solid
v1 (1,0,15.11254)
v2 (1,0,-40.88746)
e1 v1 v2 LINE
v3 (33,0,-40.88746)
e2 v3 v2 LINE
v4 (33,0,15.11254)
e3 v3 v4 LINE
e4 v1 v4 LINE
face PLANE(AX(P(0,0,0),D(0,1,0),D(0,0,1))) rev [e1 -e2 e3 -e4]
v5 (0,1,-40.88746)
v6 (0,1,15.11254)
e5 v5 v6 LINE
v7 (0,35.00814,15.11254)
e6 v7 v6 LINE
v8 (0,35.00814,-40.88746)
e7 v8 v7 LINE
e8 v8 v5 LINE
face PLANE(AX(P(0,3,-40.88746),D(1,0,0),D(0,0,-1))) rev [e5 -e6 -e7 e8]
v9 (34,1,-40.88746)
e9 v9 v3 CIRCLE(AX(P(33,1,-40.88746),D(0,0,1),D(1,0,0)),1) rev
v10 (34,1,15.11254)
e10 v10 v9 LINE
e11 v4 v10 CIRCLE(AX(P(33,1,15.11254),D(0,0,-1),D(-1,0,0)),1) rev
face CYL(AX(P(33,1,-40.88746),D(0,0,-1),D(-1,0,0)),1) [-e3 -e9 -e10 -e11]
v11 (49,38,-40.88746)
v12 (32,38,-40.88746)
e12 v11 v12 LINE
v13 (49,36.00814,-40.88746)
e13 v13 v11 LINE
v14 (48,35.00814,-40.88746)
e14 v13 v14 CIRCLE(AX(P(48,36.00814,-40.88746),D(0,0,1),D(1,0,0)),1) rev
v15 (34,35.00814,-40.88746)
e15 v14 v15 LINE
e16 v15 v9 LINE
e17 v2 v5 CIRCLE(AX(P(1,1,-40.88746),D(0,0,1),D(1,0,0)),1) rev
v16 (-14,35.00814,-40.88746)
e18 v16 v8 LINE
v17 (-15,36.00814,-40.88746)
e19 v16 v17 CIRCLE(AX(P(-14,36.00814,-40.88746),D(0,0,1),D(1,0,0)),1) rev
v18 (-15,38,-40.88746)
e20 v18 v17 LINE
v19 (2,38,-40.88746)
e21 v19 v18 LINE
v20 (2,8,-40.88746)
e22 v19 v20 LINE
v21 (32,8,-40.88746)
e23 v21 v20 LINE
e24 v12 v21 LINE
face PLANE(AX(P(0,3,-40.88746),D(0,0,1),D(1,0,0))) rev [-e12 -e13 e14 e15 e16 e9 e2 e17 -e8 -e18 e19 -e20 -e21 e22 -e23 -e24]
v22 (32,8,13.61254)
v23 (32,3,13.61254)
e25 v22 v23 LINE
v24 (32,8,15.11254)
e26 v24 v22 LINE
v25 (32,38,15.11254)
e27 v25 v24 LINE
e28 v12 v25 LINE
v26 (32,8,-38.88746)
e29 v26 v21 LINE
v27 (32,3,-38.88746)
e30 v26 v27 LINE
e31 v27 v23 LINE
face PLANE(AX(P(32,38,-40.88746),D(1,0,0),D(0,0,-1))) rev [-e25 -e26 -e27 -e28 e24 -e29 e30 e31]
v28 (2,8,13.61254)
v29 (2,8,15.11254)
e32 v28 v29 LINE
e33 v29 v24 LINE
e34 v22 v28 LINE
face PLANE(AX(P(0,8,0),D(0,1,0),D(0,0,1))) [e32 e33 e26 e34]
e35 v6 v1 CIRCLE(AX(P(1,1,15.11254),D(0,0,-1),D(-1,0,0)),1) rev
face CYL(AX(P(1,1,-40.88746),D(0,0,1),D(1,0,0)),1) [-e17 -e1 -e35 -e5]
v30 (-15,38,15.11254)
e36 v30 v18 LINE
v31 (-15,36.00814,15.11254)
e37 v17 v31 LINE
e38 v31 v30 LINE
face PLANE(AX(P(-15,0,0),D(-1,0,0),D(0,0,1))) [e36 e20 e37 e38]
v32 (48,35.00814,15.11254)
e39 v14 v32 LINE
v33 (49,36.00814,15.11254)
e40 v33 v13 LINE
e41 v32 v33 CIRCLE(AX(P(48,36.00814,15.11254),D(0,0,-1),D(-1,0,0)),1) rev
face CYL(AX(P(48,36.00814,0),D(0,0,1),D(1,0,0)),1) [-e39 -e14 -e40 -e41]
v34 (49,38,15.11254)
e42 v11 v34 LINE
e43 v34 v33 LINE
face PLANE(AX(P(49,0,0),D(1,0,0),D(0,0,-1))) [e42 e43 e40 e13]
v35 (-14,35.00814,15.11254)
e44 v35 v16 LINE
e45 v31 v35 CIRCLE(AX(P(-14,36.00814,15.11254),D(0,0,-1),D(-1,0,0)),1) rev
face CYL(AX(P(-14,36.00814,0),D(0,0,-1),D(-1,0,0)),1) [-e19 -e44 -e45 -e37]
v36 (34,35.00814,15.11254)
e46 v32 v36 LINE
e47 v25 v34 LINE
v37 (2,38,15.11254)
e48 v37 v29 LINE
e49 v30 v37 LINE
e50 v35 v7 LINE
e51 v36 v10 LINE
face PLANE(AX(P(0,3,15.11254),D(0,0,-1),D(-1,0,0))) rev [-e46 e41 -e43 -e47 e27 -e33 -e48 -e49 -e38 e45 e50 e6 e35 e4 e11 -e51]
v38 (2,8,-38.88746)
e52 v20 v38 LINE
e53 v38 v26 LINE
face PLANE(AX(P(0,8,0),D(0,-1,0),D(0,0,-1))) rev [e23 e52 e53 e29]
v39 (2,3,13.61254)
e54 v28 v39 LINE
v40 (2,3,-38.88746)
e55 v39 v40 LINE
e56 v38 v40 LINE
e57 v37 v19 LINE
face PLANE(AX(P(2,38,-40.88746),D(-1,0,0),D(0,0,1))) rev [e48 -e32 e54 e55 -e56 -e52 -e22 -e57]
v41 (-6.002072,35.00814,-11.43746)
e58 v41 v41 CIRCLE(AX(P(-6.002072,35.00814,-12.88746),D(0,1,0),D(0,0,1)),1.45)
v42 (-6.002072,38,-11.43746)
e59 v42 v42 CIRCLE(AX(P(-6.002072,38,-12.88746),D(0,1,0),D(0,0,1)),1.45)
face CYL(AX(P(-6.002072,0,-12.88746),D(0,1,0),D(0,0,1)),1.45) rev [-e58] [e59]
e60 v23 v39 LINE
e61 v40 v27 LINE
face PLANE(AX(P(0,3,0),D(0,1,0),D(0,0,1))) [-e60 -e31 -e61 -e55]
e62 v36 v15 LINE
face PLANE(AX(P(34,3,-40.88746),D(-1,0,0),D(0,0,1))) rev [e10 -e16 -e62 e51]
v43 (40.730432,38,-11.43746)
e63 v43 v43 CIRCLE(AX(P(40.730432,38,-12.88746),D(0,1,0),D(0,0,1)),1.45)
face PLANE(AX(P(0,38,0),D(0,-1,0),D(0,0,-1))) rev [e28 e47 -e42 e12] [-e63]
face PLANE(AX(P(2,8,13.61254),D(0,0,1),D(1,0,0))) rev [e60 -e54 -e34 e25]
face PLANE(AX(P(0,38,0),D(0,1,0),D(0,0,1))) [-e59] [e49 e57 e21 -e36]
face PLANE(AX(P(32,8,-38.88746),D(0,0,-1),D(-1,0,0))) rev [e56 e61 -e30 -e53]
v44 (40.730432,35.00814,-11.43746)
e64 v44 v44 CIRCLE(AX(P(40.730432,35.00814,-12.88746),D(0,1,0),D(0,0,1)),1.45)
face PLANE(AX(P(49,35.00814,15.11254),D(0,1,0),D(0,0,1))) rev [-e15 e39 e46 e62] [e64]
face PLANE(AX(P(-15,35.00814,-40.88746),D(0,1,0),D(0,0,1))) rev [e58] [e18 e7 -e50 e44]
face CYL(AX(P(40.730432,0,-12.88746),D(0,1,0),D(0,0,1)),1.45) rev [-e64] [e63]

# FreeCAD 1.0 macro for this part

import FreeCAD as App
import Part
import Sketcher
Q = App.Units.Quantity


def edges_at(feature, points):
    """Names of the edges that pass closest to the given points."""
    edges = feature.Shape.Edges
    near = lambda p: min(range(len(edges)), key=lambda i: edges[i].distToShape(Part.Vertex(*p))[0])
    return sorted({f"Edge{near(p) + 1}" for p in points})

doc = App.newDocument("Part")
body = doc.addObject("PartDesign::Body", "Body")

# Sketch on XZ plane
sketch1 = doc.addObject("Sketcher::SketchObject", "Sketch")
body.addObject(sketch1)
sketch1.AttachmentSupport = (doc.XZ_Plane, [""])
sketch1.MapMode = "FlatFace"
sketch1.addGeometry(Part.LineSegment(App.Vector(0, -40.88746, 0), App.Vector(0, 15.11254, 0)), False)
sketch1.addGeometry(Part.LineSegment(App.Vector(0, 15.11254, 0), App.Vector(34, 15.11254, 0)), False)
sketch1.addGeometry(Part.LineSegment(App.Vector(34, 15.11254, 0), App.Vector(34, -40.88746, 0)), False)
sketch1.addGeometry(Part.LineSegment(App.Vector(34, -40.88746, 0), App.Vector(0, -40.88746, 0)), False)
sketch1.addConstraint(Sketcher.Constraint("Coincident", 0, 2, 1, 1))
sketch1.addConstraint(Sketcher.Constraint("Coincident", 1, 2, 2, 1))
sketch1.addConstraint(Sketcher.Constraint("Coincident", 2, 2, 3, 1))
sketch1.addConstraint(Sketcher.Constraint("Coincident", 3, 2, 0, 1))
sketch1.addConstraint(Sketcher.Constraint("Vertical", 0))
sketch1.addConstraint(Sketcher.Constraint("Horizontal", 1))
sketch1.addConstraint(Sketcher.Constraint("Vertical", 2))
sketch1.addConstraint(Sketcher.Constraint("Horizontal", 3))
sketch1.addConstraint(Sketcher.Constraint("PointOnObject", 0, 2, -2))
sketch1.addConstraint(Sketcher.Constraint("DistanceX", 1, 1, 1, 2, Q("34 mm")))
sketch1.addConstraint(Sketcher.Constraint("DistanceY", 0, 1, 0, 2, Q("56 mm")))
sketch1.addConstraint(Sketcher.Constraint("DistanceY", -1, 1, 0, 2, Q("15.11254 mm")))
pad1 = doc.addObject("PartDesign::Pad", "Pad")
body.addObject(pad1)
pad1.Profile = sketch1
pad1.Length = 3
pad1.Reversed = True

# Sketch on XZ plane
sketch2 = doc.addObject("Sketcher::SketchObject", "Sketch001")
body.addObject(sketch2)
sketch2.AttachmentSupport = (doc.XZ_Plane, [""])
sketch2.MapMode = "FlatFace"
sketch2.AttachmentOffset = App.Placement(App.Vector(0, 0, -3), App.Rotation())
sketch2.addGeometry(Part.LineSegment(App.Vector(0, -40.88746, 0), App.Vector(0, 15.11254, 0)), False)
sketch2.addGeometry(Part.LineSegment(App.Vector(0, 15.11254, 0), App.Vector(2, 15.11254, 0)), False)
sketch2.addGeometry(Part.LineSegment(App.Vector(2, 15.11254, 0), App.Vector(2, -40.88746, 0)), False)
sketch2.addGeometry(Part.LineSegment(App.Vector(2, -40.88746, 0), App.Vector(0, -40.88746, 0)), False)
sketch2.addGeometry(Part.LineSegment(App.Vector(32, -40.88746, 0), App.Vector(32, 15.11254, 0)), False)
sketch2.addGeometry(Part.LineSegment(App.Vector(32, 15.11254, 0), App.Vector(34, 15.11254, 0)), False)
sketch2.addGeometry(Part.LineSegment(App.Vector(34, 15.11254, 0), App.Vector(34, -40.88746, 0)), False)
sketch2.addGeometry(Part.LineSegment(App.Vector(34, -40.88746, 0), App.Vector(32, -40.88746, 0)), False)
sketch2.addConstraint(Sketcher.Constraint("Coincident", 0, 2, 1, 1))
sketch2.addConstraint(Sketcher.Constraint("Coincident", 1, 2, 2, 1))
sketch2.addConstraint(Sketcher.Constraint("Coincident", 2, 2, 3, 1))
sketch2.addConstraint(Sketcher.Constraint("Coincident", 3, 2, 0, 1))
sketch2.addConstraint(Sketcher.Constraint("Coincident", 4, 2, 5, 1))
sketch2.addConstraint(Sketcher.Constraint("Coincident", 5, 2, 6, 1))
sketch2.addConstraint(Sketcher.Constraint("Coincident", 6, 2, 7, 1))
sketch2.addConstraint(Sketcher.Constraint("Coincident", 7, 2, 4, 1))
sketch2.addConstraint(Sketcher.Constraint("Vertical", 0))
sketch2.addConstraint(Sketcher.Constraint("Horizontal", 1))
sketch2.addConstraint(Sketcher.Constraint("Vertical", 2))
sketch2.addConstraint(Sketcher.Constraint("Horizontal", 3))
sketch2.addConstraint(Sketcher.Constraint("Vertical", 4))
sketch2.addConstraint(Sketcher.Constraint("Horizontal", 5))
sketch2.addConstraint(Sketcher.Constraint("Vertical", 6))
sketch2.addConstraint(Sketcher.Constraint("Horizontal", 7))
sketch2.addConstraint(Sketcher.Constraint("PointOnObject", 0, 2, -2))
sketch2.addConstraint(Sketcher.Constraint("Horizontal", 1, 2, 4, 2))
sketch2.addConstraint(Sketcher.Constraint("Horizontal", 3, 2, 6, 2))
sketch2.addConstraint(Sketcher.Constraint("Equal", 3, 5))
sketch2.addConstraint(Sketcher.Constraint("DistanceX", 1, 1, 1, 2, Q("2 mm")))
sketch2.addConstraint(Sketcher.Constraint("DistanceY", 0, 1, 0, 2, Q("56 mm")))
sketch2.addConstraint(Sketcher.Constraint("DistanceX", -1, 1, 4, 2, Q("32 mm")))
sketch2.addConstraint(Sketcher.Constraint("DistanceY", -1, 1, 0, 2, Q("15.11254 mm")))
pad2 = doc.addObject("PartDesign::Pad", "Pad001")
body.addObject(pad2)
pad2.Profile = sketch2
pad2.Length = 35
pad2.Reversed = True

# Sketch on YZ plane
sketch3 = doc.addObject("Sketcher::SketchObject", "Sketch002")
body.addObject(sketch3)
sketch3.AttachmentSupport = (doc.YZ_Plane, [""])
sketch3.MapMode = "FlatFace"
sketch3.AttachmentOffset = App.Placement(App.Vector(0, 0, 34), App.Rotation())
sketch3.addGeometry(Part.LineSegment(App.Vector(38, 15.11254, 0), App.Vector(35.00814, 15.11254, 0)), False)
sketch3.addGeometry(Part.LineSegment(App.Vector(35.00814, 15.11254, 0), App.Vector(35.00814, -40.88746, 0)), False)
sketch3.addGeometry(Part.LineSegment(App.Vector(35.00814, -40.88746, 0), App.Vector(38, -40.88746, 0)), False)
sketch3.addGeometry(Part.LineSegment(App.Vector(38, -40.88746, 0), App.Vector(38, 15.11254, 0)), False)
sketch3.addConstraint(Sketcher.Constraint("Coincident", 0, 2, 1, 1))
sketch3.addConstraint(Sketcher.Constraint("Coincident", 1, 2, 2, 1))
sketch3.addConstraint(Sketcher.Constraint("Coincident", 2, 2, 3, 1))
sketch3.addConstraint(Sketcher.Constraint("Coincident", 3, 2, 0, 1))
sketch3.addConstraint(Sketcher.Constraint("Horizontal", 0))
sketch3.addConstraint(Sketcher.Constraint("Vertical", 1))
sketch3.addConstraint(Sketcher.Constraint("Horizontal", 2))
sketch3.addConstraint(Sketcher.Constraint("Vertical", 3))
sketch3.addConstraint(Sketcher.Constraint("DistanceY", 1, 2, 1, 1, Q("56 mm")))
sketch3.addConstraint(Sketcher.Constraint("DistanceX", -1, 1, 2, 2, Q("38 mm")))
sketch3.addConstraint(Sketcher.Constraint("DistanceX", 0, 2, 0, 1, Q("2.99186 mm")))
sketch3.addConstraint(Sketcher.Constraint("DistanceY", -1, 1, 0, 2, Q("15.11254 mm")))
pad3 = doc.addObject("PartDesign::Pad", "Pad002")
body.addObject(pad3)
pad3.Profile = sketch3
pad3.Length = 15

# Sketch on YZ plane
sketch4 = doc.addObject("Sketcher::SketchObject", "Sketch003")
body.addObject(sketch4)
sketch4.AttachmentSupport = (doc.YZ_Plane, [""])
sketch4.MapMode = "FlatFace"
sketch4.addGeometry(Part.LineSegment(App.Vector(38, -40.88746, 0), App.Vector(35.00814, -40.88746, 0)), False)
sketch4.addGeometry(Part.LineSegment(App.Vector(35.00814, -40.88746, 0), App.Vector(35.00814, 15.11254, 0)), False)
sketch4.addGeometry(Part.LineSegment(App.Vector(35.00814, 15.11254, 0), App.Vector(38, 15.11254, 0)), False)
sketch4.addGeometry(Part.LineSegment(App.Vector(38, 15.11254, 0), App.Vector(38, -40.88746, 0)), False)
sketch4.addConstraint(Sketcher.Constraint("Coincident", 0, 2, 1, 1))
sketch4.addConstraint(Sketcher.Constraint("Coincident", 1, 2, 2, 1))
sketch4.addConstraint(Sketcher.Constraint("Coincident", 2, 2, 3, 1))
sketch4.addConstraint(Sketcher.Constraint("Coincident", 3, 2, 0, 1))
sketch4.addConstraint(Sketcher.Constraint("Horizontal", 0))
sketch4.addConstraint(Sketcher.Constraint("Vertical", 1))
sketch4.addConstraint(Sketcher.Constraint("Horizontal", 2))
sketch4.addConstraint(Sketcher.Constraint("Vertical", 3))
sketch4.addConstraint(Sketcher.Constraint("DistanceY", 1, 1, 1, 2, Q("56 mm")))
sketch4.addConstraint(Sketcher.Constraint("DistanceX", -1, 1, 2, 2, Q("38 mm")))
sketch4.addConstraint(Sketcher.Constraint("DistanceX", 0, 2, 0, 1, Q("2.99186 mm")))
sketch4.addConstraint(Sketcher.Constraint("DistanceY", 0, 2, -1, 1, Q("40.88746 mm")))
pad4 = doc.addObject("PartDesign::Pad", "Pad003")
body.addObject(pad4)
pad4.Profile = sketch4
pad4.Length = 15
pad4.Reversed = True

# Sketch on XZ plane
sketch5 = doc.addObject("Sketcher::SketchObject", "Sketch004")
body.addObject(sketch5)
sketch5.AttachmentSupport = (doc.XZ_Plane, [""])
sketch5.MapMode = "FlatFace"
sketch5.AttachmentOffset = App.Placement(App.Vector(0, 0, -3), App.Rotation())
sketch5.addGeometry(Part.LineSegment(App.Vector(2, -40.88746, 0), App.Vector(2, -38.88746, 0)), False)
sketch5.addGeometry(Part.LineSegment(App.Vector(2, -38.88746, 0), App.Vector(32, -38.88746, 0)), False)
sketch5.addGeometry(Part.LineSegment(App.Vector(32, -38.88746, 0), App.Vector(32, -40.88746, 0)), False)
sketch5.addGeometry(Part.LineSegment(App.Vector(32, -40.88746, 0), App.Vector(2, -40.88746, 0)), False)
sketch5.addGeometry(Part.LineSegment(App.Vector(2, 13.61254, 0), App.Vector(2, 15.11254, 0)), False)
sketch5.addGeometry(Part.LineSegment(App.Vector(2, 15.11254, 0), App.Vector(32, 15.11254, 0)), False)
sketch5.addGeometry(Part.LineSegment(App.Vector(32, 15.11254, 0), App.Vector(32, 13.61254, 0)), False)
sketch5.addGeometry(Part.LineSegment(App.Vector(32, 13.61254, 0), App.Vector(2, 13.61254, 0)), False)
sketch5.addConstraint(Sketcher.Constraint("Coincident", 0, 2, 1, 1))
sketch5.addConstraint(Sketcher.Constraint("Coincident", 1, 2, 2, 1))
sketch5.addConstraint(Sketcher.Constraint("Coincident", 2, 2, 3, 1))
sketch5.addConstraint(Sketcher.Constraint("Coincident", 3, 2, 0, 1))
sketch5.addConstraint(Sketcher.Constraint("Coincident", 4, 2, 5, 1))
sketch5.addConstraint(Sketcher.Constraint("Coincident", 5, 2, 6, 1))
sketch5.addConstraint(Sketcher.Constraint("Coincident", 6, 2, 7, 1))
sketch5.addConstraint(Sketcher.Constraint("Coincident", 7, 2, 4, 1))
sketch5.addConstraint(Sketcher.Constraint("Vertical", 0))
sketch5.addConstraint(Sketcher.Constraint("Horizontal", 1))
sketch5.addConstraint(Sketcher.Constraint("Vertical", 2))
sketch5.addConstraint(Sketcher.Constraint("Horizontal", 3))
sketch5.addConstraint(Sketcher.Constraint("Vertical", 4))
sketch5.addConstraint(Sketcher.Constraint("Horizontal", 5))
sketch5.addConstraint(Sketcher.Constraint("Vertical", 6))
sketch5.addConstraint(Sketcher.Constraint("Horizontal", 7))
sketch5.addConstraint(Sketcher.Constraint("Vertical", 3, 2, 4, 2))
sketch5.addConstraint(Sketcher.Constraint("Vertical", 2, 2, 5, 2))
sketch5.addConstraint(Sketcher.Constraint("DistanceX", 1, 1, 1, 2, Q("30 mm")))
sketch5.addConstraint(Sketcher.Constraint("DistanceY", 0, 1, 0, 2, Q("2 mm")))
sketch5.addConstraint(Sketcher.Constraint("DistanceY", 4, 1, 4, 2, Q("1.5 mm")))
sketch5.addConstraint(Sketcher.Constraint("DistanceX", -1, 1, 0, 2, Q("2 mm")))
sketch5.addConstraint(Sketcher.Constraint("DistanceY", 0, 2, 4, 2, Q("54 mm")))
sketch5.addConstraint(Sketcher.Constraint("DistanceY", 0, 2, -1, 1, Q("38.88746 mm")))
pad5 = doc.addObject("PartDesign::Pad", "Pad004")
body.addObject(pad5)
pad5.Profile = sketch5
pad5.Length = 5
pad5.Reversed = True

# Sketch on XZ plane
sketch6 = doc.addObject("Sketcher::SketchObject", "Sketch005")
body.addObject(sketch6)
sketch6.AttachmentSupport = (doc.XZ_Plane, [""])
sketch6.MapMode = "FlatFace"
sketch6.AttachmentOffset = App.Placement(App.Vector(0, 0, -38), App.Rotation())
sketch6.addGeometry(Part.Circle(App.Vector(-6.002072, -12.88746, 0), App.Vector(0, 0, 1), 1.45), False)
sketch6.addGeometry(Part.Circle(App.Vector(40.730432, -12.88746, 0), App.Vector(0, 0, 1), 1.45), False)
sketch6.addConstraint(Sketcher.Constraint("Equal", 0, 1))
sketch6.addConstraint(Sketcher.Constraint("Horizontal", 0, 3, 1, 3))
sketch6.addConstraint(Sketcher.Constraint("Diameter", 0, Q("2.9 mm")))
sketch6.addConstraint(Sketcher.Constraint("DistanceY", 0, 3, -1, 1, Q("12.88746 mm")))
sketch6.addConstraint(Sketcher.Constraint("DistanceX", 0, 3, -1, 1, Q("6.002072 mm")))
sketch6.addConstraint(Sketcher.Constraint("DistanceX", -1, 1, 1, 3, Q("40.730432 mm")))
pocket1 = doc.addObject("PartDesign::Pocket", "Pocket")
body.addObject(pocket1)
pocket1.Profile = sketch6
pocket1.Type = "ThroughAll"
pocket1.Reversed = True
doc.recompute()

fillet = doc.addObject("PartDesign::Fillet", "Fillet")
body.addObject(fillet)
fillet.Base = (pocket1, edges_at(pocket1, [
    (49, 35.008, -12.887),
    (-15, 35.008, -12.887),
    (34, 0, -12.887),
    (0, 0, -12.887),
]))
fillet.Radius = 1

doc.recompute()
